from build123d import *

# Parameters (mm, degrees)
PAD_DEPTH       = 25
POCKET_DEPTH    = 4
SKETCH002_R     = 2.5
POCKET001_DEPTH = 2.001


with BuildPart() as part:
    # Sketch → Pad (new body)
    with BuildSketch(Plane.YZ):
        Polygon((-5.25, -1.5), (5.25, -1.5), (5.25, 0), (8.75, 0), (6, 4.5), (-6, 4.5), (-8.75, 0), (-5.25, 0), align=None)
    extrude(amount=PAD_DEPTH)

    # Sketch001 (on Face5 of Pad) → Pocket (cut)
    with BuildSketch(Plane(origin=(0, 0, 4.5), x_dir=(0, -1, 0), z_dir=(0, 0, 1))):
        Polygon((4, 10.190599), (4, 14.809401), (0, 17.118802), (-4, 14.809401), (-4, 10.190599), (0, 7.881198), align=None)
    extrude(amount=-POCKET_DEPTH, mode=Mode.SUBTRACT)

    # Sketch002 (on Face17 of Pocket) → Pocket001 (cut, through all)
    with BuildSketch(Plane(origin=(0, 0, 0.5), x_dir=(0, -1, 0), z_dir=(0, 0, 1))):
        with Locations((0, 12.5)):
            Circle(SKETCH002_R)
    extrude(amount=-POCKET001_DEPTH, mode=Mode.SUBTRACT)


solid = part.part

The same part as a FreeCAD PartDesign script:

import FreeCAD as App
import Part
import Sketcher
from FreeCAD import Vector
Q = App.Units.Quantity

doc = App.newDocument("Part")
body = doc.addObject("PartDesign::Body", "Body")

sketch1 = body.newObject("Sketcher::SketchObject", "Sketch")
sketch1.AttachmentSupport = (doc.getObject("YZ_Plane"), [""])
sketch1.MapMode = "FlatFace"
sketch1.addGeometry(Part.LineSegment(Vector(-5.25, -1.5, 0), Vector(5.25, -1.5, 0)), False)
sketch1.addGeometry(Part.LineSegment(Vector(5.25, -1.5, 0), Vector(5.25, 0, 0)), False)
sketch1.addGeometry(Part.LineSegment(Vector(5.25, 0, 0), Vector(8.75, 0, 0)), False)
sketch1.addGeometry(Part.LineSegment(Vector(8.75, 0, 0), Vector(6, 4.5, 0)), False)
sketch1.addGeometry(Part.LineSegment(Vector(6, 4.5, 0), Vector(-6, 4.5, 0)), False)
sketch1.addGeometry(Part.LineSegment(Vector(-6, 4.5, 0), Vector(-8.75, 0, 0)), False)
sketch1.addGeometry(Part.LineSegment(Vector(-8.75, 0, 0), Vector(-5.25, 0, 0)), False)
sketch1.addGeometry(Part.LineSegment(Vector(-5.25, 0, 0), Vector(-5.25, -1.5, 0)), False)
sketch1.addConstraint(Sketcher.Constraint("Coincident", 0, 2, 1, 1))
sketch1.addConstraint(Sketcher.Constraint("Coincident", 1, 2, 2, 1))
sketch1.addConstraint(Sketcher.Constraint("Coincident", 2, 2, 3, 1))
sketch1.addConstraint(Sketcher.Constraint("Coincident", 3, 2, 4, 1))
sketch1.addConstraint(Sketcher.Constraint("Coincident", 4, 2, 5, 1))
sketch1.addConstraint(Sketcher.Constraint("Coincident", 5, 2, 6, 1))
sketch1.addConstraint(Sketcher.Constraint("Coincident", 6, 2, 7, 1))
sketch1.addConstraint(Sketcher.Constraint("Coincident", 7, 2, 0, 1))
sketch1.addConstraint(Sketcher.Constraint("Horizontal", 0))
sketch1.addConstraint(Sketcher.Constraint("Vertical", 1))
sketch1.addConstraint(Sketcher.Constraint("Horizontal", 2))
sketch1.addConstraint(Sketcher.Constraint("Horizontal", 4))
sketch1.addConstraint(Sketcher.Constraint("Horizontal", 6))
sketch1.addConstraint(Sketcher.Constraint("Vertical", 7))
sketch1.addConstraint(Sketcher.Constraint("Symmetric", 2, 2, 5, 2, -1, 1))
sketch1.addConstraint(Sketcher.Constraint("Symmetric", 1, 2, 6, 2, -2))
sketch1.addConstraint(Sketcher.Constraint("Equal", 3, 5))
sketch1.addConstraint(Sketcher.Constraint("DistanceX", 4, 2, 4, 1, 12.0))
sketch1.addConstraint(Sketcher.Constraint("DistanceX", 0, 1, 0, 2, 10.5))
sketch1.addConstraint(Sketcher.Constraint("DistanceX", 2, 1, 2, 2, 3.5))
sketch1.addConstraint(Sketcher.Constraint("DistanceY", 1, 1, 1, 2, 1.5))
sketch1.addConstraint(Sketcher.Constraint("DistanceY", 0, 2, 3, 2, 6.0))
pad1 = body.newObject("PartDesign::Pad", "Pad")
pad1.Profile = sketch1
pad1.Length = 25

sketch2 = body.newObject("Sketcher::SketchObject", "Sketch001")
sketch2.AttachmentSupport = (doc.getObject("XY_Plane"), [""])
sketch2.MapMode = "FlatFace"
sketch2.AttachmentOffset = App.Placement(Vector(0, 0, 4.5), App.Rotation())
sketch2.addGeometry(Part.LineSegment(Vector(10.190599, -4, 0), Vector(14.809401, -4, 0)), False)
sketch2.addGeometry(Part.LineSegment(Vector(14.809401, -4, 0), Vector(17.118802, 0, 0)), False)
sketch2.addGeometry(Part.LineSegment(Vector(17.118802, 0, 0), Vector(14.809401, 4, 0)), False)
sketch2.addGeometry(Part.LineSegment(Vector(14.809401, 4, 0), Vector(10.190599, 4, 0)), False)
sketch2.addGeometry(Part.LineSegment(Vector(10.190599, 4, 0), Vector(7.881198, 0, 0)), False)
sketch2.addGeometry(Part.LineSegment(Vector(7.881198, 0, 0), Vector(10.190599, -4, 0)), False)
sketch2.addConstraint(Sketcher.Constraint("Coincident", 0, 2, 1, 1))
sketch2.addConstraint(Sketcher.Constraint("Coincident", 1, 2, 2, 1))
sketch2.addConstraint(Sketcher.Constraint("Coincident", 2, 2, 3, 1))
sketch2.addConstraint(Sketcher.Constraint("Coincident", 3, 2, 4, 1))
sketch2.addConstraint(Sketcher.Constraint("Coincident", 4, 2, 5, 1))
sketch2.addConstraint(Sketcher.Constraint("Coincident", 5, 2, 0, 1))
sketch2.addConstraint(Sketcher.Constraint("Horizontal", 0))
sketch2.addConstraint(Sketcher.Constraint("Horizontal", 3))
sketch2.addConstraint(Sketcher.Constraint("Symmetric", 0, 2, 2, 2, -1))
sketch2.addConstraint(Sketcher.Constraint("PointOnObject", 1, 2, -1))
sketch2.addConstraint(Sketcher.Constraint("PointOnObject", 4, 2, -1))
sketch2.addConstraint(Sketcher.Constraint("Parallel", 1, 4))
sketch2.addConstraint(Sketcher.Constraint("Parallel", 2, 5))
sketch2.addConstraint(Sketcher.Constraint("Angle", 1, Q("60.000001 deg")))
sketch2.addConstraint(Sketcher.Constraint("DistanceY", 0, 2, -1, 1, 4.0))
sketch2.addConstraint(Sketcher.Constraint("DistanceX", 0, 1, 0, 2, 4.618802))
sketch2.addConstraint(Sketcher.Constraint("DistanceX", -1, 1, 0, 2, 14.809401))
pocket1 = body.newObject("PartDesign::Pocket", "Pocket")
pocket1.Profile = sketch2
pocket1.Length = 4

sketch3 = body.newObject("Sketcher::SketchObject", "Sketch002")
sketch3.AttachmentSupport = (doc.getObject("XY_Plane"), [""])
sketch3.MapMode = "FlatFace"
sketch3.AttachmentOffset = App.Placement(Vector(0, 0, 0.5), App.Rotation())
sketch3.addGeometry(Part.Circle(Vector(12.5, 0, 0), Vector(0, 0, 1), 2.5), False)
sketch3.addConstraint(Sketcher.Constraint("PointOnObject", 0, 3, -1))
sketch3.addConstraint(Sketcher.Constraint("Diameter", 0, 5.0))
sketch3.addConstraint(Sketcher.Constraint("DistanceX", -1, 1, 0, 3, 12.5))
pocket2 = body.newObject("PartDesign::Pocket", "Pocket001")
pocket2.Profile = sketch3
pocket2.Type = "ThroughAll"

doc.recompute()
